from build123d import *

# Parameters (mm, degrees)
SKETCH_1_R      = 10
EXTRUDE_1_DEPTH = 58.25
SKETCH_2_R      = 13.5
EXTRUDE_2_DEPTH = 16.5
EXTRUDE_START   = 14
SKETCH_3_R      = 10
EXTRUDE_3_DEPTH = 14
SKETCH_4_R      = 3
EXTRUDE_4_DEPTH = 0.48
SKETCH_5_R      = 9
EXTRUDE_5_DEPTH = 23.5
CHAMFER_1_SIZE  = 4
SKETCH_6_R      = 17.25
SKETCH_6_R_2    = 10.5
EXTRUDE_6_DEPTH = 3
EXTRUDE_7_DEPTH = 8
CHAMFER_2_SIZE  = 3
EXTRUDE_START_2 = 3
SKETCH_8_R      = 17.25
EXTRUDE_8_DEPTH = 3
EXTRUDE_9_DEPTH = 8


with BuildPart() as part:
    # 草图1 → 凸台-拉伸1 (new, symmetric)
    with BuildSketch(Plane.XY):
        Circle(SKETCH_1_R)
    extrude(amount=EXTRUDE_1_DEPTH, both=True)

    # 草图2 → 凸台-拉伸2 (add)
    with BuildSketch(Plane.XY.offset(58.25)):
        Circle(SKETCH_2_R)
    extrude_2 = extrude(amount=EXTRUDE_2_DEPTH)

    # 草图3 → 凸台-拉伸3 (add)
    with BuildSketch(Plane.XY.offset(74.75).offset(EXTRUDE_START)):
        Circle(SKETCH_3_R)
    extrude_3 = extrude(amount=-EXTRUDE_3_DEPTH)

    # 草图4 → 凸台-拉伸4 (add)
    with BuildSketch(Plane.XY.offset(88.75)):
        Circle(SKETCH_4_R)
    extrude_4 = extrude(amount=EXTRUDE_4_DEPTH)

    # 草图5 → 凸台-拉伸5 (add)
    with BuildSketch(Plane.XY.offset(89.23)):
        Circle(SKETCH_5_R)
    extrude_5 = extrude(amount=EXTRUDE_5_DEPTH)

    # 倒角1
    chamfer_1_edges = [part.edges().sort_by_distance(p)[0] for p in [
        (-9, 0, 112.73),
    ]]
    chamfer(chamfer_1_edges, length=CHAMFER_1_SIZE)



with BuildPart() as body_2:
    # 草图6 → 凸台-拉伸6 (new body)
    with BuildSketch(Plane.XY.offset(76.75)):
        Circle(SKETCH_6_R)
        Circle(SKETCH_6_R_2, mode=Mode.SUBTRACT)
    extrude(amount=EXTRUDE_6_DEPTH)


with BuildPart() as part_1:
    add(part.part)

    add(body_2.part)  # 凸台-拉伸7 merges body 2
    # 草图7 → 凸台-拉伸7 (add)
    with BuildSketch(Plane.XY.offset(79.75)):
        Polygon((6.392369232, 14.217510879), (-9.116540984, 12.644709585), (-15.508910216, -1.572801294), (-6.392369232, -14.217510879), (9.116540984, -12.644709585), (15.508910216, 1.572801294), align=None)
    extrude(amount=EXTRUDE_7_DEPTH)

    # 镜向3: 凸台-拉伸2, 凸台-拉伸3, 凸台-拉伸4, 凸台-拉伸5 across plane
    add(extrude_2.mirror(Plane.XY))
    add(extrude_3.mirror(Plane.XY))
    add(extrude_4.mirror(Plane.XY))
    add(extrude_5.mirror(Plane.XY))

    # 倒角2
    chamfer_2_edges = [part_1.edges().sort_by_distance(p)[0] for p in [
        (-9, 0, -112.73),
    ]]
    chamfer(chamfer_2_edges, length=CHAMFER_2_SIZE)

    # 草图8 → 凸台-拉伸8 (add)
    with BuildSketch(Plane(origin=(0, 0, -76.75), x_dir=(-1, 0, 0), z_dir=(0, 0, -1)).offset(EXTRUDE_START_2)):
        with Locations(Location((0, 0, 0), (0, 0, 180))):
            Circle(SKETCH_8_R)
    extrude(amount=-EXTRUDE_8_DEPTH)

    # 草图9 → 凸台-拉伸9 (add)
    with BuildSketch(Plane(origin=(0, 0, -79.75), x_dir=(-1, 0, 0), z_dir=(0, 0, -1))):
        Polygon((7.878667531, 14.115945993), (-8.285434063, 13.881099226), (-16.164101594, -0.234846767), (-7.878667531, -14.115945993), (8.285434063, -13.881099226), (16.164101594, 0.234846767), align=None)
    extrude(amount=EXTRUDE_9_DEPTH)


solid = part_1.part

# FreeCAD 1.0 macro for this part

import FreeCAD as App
import Part
import Sketcher

V = App.Vector


def edges_at(feature, points):
    """Names of the edges that pass closest to the given points."""
    edges = feature.Shape.Edges
    near = lambda p: min(range(len(edges)), key=lambda i: edges[i].distToShape(Part.Vertex(*p))[0])
    return sorted({f"Edge{near(p) + 1}" for p in points})


def add_polygon(sketch, points):
    """Adds a closed chain of lines whose ends are joined by coincident constraints."""
    first, n = sketch.GeometryCount, len(points)
    for a, b in zip(points, points[1:] + points[:1]):
        sketch.addGeometry(Part.LineSegment(App.Vector(*a, 0), App.Vector(*b, 0)), False)
    for i in range(n):
        sketch.addConstraint(Sketcher.Constraint("Coincident", first + i, 2, first + (i + 1) % n, 1))

doc = App.newDocument("Part")
params = doc.addObject("Spreadsheet::Sheet", "Params")
for row, (alias, value) in enumerate([
    ("sketch1_diameter", "20 mm"),
    ("pad1_length", "116.5 mm"),
    ("sketch2_diameter", "27 mm"),
    ("pad2_length", "16.5 mm"),
    ("sketch3_diameter", "20 mm"),
    ("pad3_length", "14 mm"),
    ("sketch4_diameter", "6 mm"),
    ("pad4_length", "0.48 mm"),
    ("sketch5_diameter", "18 mm"),
    ("pad5_length", "23.5 mm"),
    ("chamfer_size", "4 mm"),
    ("sketch6_diameter", "21 mm"),
    ("sketch6_diameter2", "34.5 mm"),
    ("pad6_length", "3 mm"),
    ("pad7_length", "8 mm"),
    ("chamfer2_size", "3 mm"),
    ("sketch8_diameter", "34.5 mm"),
    ("pad8_length", "3 mm"),
    ("pad9_length", "8 mm"),
], start=1):
    params.set(f"A{row}", alias)
    params.set(f"B{row}", "=" + value)
    params.setAlias(f"B{row}", alias)

body = doc.addObject("PartDesign::Body", "Body")

# Sketch on XY plane
sketch1 = body.newObject("Sketcher::SketchObject", "Sketch")
sketch1.AttachmentSupport = (doc.getObject("XY_Plane"), [""])
sketch1.MapMode = "FlatFace"
sketch1.addGeometry(Part.Circle(V(0, 0, 0), V(0, 0, 1), 10), False)
sketch1.addConstraint([
    Sketcher.Constraint("Coincident", 0, 3, -1, 1),
    Sketcher.Constraint("Diameter", 0, 20.0),
])
sketch1.setExpression("Constraints[1]", "Params.sketch1_diameter")
pad1 = body.newObject("PartDesign::Pad", "Pad")
pad1.Profile = sketch1
pad1.setExpression("Length", "Params.pad1_length")
pad1.Midplane = True

# Sketch on XY plane
sketch2 = body.newObject("Sketcher::SketchObject", "Sketch001")
sketch2.AttachmentSupport = (doc.getObject("XY_Plane"), [""])
sketch2.MapMode = "FlatFace"
sketch2.AttachmentOffset = App.Placement(V(0, 0, 58.25), App.Rotation())
sketch2.addGeometry(Part.Circle(V(0, 0, 0), V(0, 0, 1), 14), False)
sketch2.addConstraint([
    Sketcher.Constraint("Coincident", 0, 3, -1, 1),
    Sketcher.Constraint("Diameter", 0, 27.0),
])
sketch2.setExpression("Constraints[1]", "Params.sketch2_diameter")
pad2 = body.newObject("PartDesign::Pad", "Pad001")
pad2.Profile = sketch2
pad2.setExpression("Length", "Params.pad2_length")

# Sketch on XY plane
sketch3 = body.newObject("Sketcher::SketchObject", "Sketch002")
sketch3.AttachmentSupport = (doc.getObject("XY_Plane"), [""])
sketch3.MapMode = "FlatFace"
sketch3.AttachmentOffset = App.Placement(V(0, 0, 88.75), App.Rotation())
sketch3.addGeometry(Part.Circle(V(0, 0, 0), V(0, 0, 1), 10), False)
sketch3.addConstraint([
    Sketcher.Constraint("Coincident", 0, 3, -1, 1),
    Sketcher.Constraint("Diameter", 0, 20.0),
])
sketch3.setExpression("Constraints[1]", "Params.sketch3_diameter")
pad3 = body.newObject("PartDesign::Pad", "Pad002")
pad3.Profile = sketch3
pad3.setExpression("Length", "Params.pad3_length")
pad3.Reversed = True

# Sketch on XY plane
sketch4 = body.newObject("Sketcher::SketchObject", "Sketch003")
sketch4.AttachmentSupport = (doc.getObject("XY_Plane"), [""])
sketch4.MapMode = "FlatFace"
sketch4.AttachmentOffset = App.Placement(V(0, 0, 88.75), App.Rotation())
sketch4.addGeometry(Part.Circle(V(0, 0, 0), V(0, 0, 1), 3), False)
sketch4.addConstraint([
    Sketcher.Constraint("Coincident", 0, 3, -1, 1),
    Sketcher.Constraint("Diameter", 0, 6.0),
])
sketch4.setExpression("Constraints[1]", "Params.sketch4_diameter")
pad4 = body.newObject("PartDesign::Pad", "Pad003")
pad4.Profile = sketch4
pad4.setExpression("Length", "Params.pad4_length")

# Sketch on XY plane
sketch5 = body.newObject("Sketcher::SketchObject", "Sketch004")
sketch5.AttachmentSupport = (doc.getObject("XY_Plane"), [""])
sketch5.MapMode = "FlatFace"
sketch5.AttachmentOffset = App.Placement(V(0, 0, 89.23), App.Rotation())
sketch5.addGeometry(Part.Circle(V(0, 0, 0), V(0, 0, 1), 9), False)
sketch5.addConstraint([
    Sketcher.Constraint("Coincident", 0, 3, -1, 1),
    Sketcher.Constraint("Diameter", 0, 18.0),
])
sketch5.setExpression("Constraints[1]", "Params.sketch5_diameter")
pad5 = body.newObject("PartDesign::Pad", "Pad004")
pad5.Profile = sketch5
pad5.setExpression("Length", "Params.pad5_length")
doc.recompute()

chamfer = body.newObject("PartDesign::Chamfer", "Chamfer")
chamfer.Base = (pad5, edges_at(pad5, [(-9, 0, 112.73)]))
chamfer.setExpression("Size", "Params.chamfer_size")
body2 = doc.addObject("PartDesign::Body", "Body001")

# Sketch on XY plane
sketch6 = body2.newObject("Sketcher::SketchObject", "Sketch005")
sketch6.AttachmentSupport = (doc.getObject("XY_Plane001"), [""])
sketch6.MapMode = "FlatFace"
sketch6.AttachmentOffset = App.Placement(V(0, 0, 76.75), App.Rotation())
sketch6.addGeometry([
    Part.Circle(V(0, 0, 0), V(0, 0, 1), 17),
    Part.Circle(V(0, 0, 0), V(0, 0, 1), 10),
], False)
sketch6.addConstraint([
    Sketcher.Constraint("Coincident", 0, 3, -1, 1),
    Sketcher.Constraint("Coincident", 1, 3, -1, 1),
    Sketcher.Constraint("Diameter", 1, 21.0),
    Sketcher.Constraint("Diameter", 0, 34.5),
])
sketch6.setExpression("Constraints[2]", "Params.sketch6_diameter")
sketch6.setExpression("Constraints[3]", "Params.sketch6_diameter2")
pad6 = body2.newObject("PartDesign::Pad", "Pad005")
pad6.Profile = sketch6
pad6.setExpression("Length", "Params.pad6_length")
body.AllowCompound = True
doc.recompute()

boolean = body.newObject("PartDesign::Boolean", "Boolean")
boolean.Type = "Fuse"
boolean.addObjects([body2])

# Sketch on XY plane
sketch7 = body.newObject("Sketcher::SketchObject", "Sketch006")
sketch7.AttachmentSupport = (doc.getObject("XY_Plane"), [""])
sketch7.MapMode = "FlatFace"
sketch7.AttachmentOffset = App.Placement(V(0, 0, 79.75), App.Rotation())
add_polygon(sketch7, [(6, 14), (-9, 13), (-16, -2), (-6, -14), (9, -13), (16, 2)])  # lines 0-5
sketch7.addConstraint([
    Sketcher.Constraint("Symmetric", 0, 2, 3, 2, -1, 1),
    Sketcher.Constraint("Symmetric", 1, 2, 4, 2, -1, 1),
    Sketcher.Constraint("Symmetric", 2, 2, 5, 2, -1, 1),
    Sketcher.Constraint("Equal", 0, 1),
    Sketcher.Constraint("Equal", 1, 2),
    Sketcher.Constraint("DistanceY", 1, 2, -1, 1, 1.572801),
    Sketcher.Constraint("DistanceY", 2, 2, 3, 2, 1.572801),
    Sketcher.Constraint("DistanceX", 0, 2, -1, 1, 9.116541),
    Sketcher.Constraint("DistanceY", -1, 1, 0, 2, 12.64471),
])
pad7 = body.newObject("PartDesign::Pad", "Pad006")
pad7.Profile = sketch7
pad7.setExpression("Length", "Params.pad7_length")
doc.recompute()

mirrored = body.newObject("PartDesign::Mirrored", "Mirrored")
mirrored.Originals = [pad2, pad3, pad4, pad5]
mirrored.MirrorPlane = (doc.getObject("XY_Plane"), [""])
body.Tip = mirrored
doc.recompute()

chamfer2 = body.newObject("PartDesign::Chamfer", "Chamfer001")
chamfer2.Base = (mirrored, edges_at(mirrored, [(-9, 0, -112.73)]))
chamfer2.setExpression("Size", "Params.chamfer2_size")

# Sketch on XY plane
sketch8 = body.newObject("Sketcher::SketchObject", "Sketch007")
sketch8.AttachmentSupport = (doc.getObject("XY_Plane"), [""])
sketch8.MapMode = "FlatFace"
sketch8.AttachmentOffset = App.Placement(V(0, 0, -79.75), App.Rotation())
sketch8.addGeometry(Part.Circle(V(0, 0, 0), V(0, 0, 1), 17), False)
sketch8.addConstraint([
    Sketcher.Constraint("Coincident", 0, 3, -1, 1),
    Sketcher.Constraint("Diameter", 0, 34.5),
])
sketch8.setExpression("Constraints[1]", "Params.sketch8_diameter")
pad8 = body.newObject("PartDesign::Pad", "Pad007")
pad8.Profile = sketch8
pad8.setExpression("Length", "Params.pad8_length")

# Sketch on XY plane
sketch9 = body.newObject("Sketcher::SketchObject", "Sketch008")
sketch9.AttachmentSupport = (doc.getObject("XY_Plane"), [""])
sketch9.MapMode = "FlatFace"
sketch9.AttachmentOffset = App.Placement(V(0, 0, -79.75), App.Rotation())
add_polygon(sketch9, [(-8, 14), (8, 14), (16, 0), (8, -14), (-8, -14), (-16, 0)])  # lines 0-5
sketch9.addConstraint([
    Sketcher.Constraint("Symmetric", 0, 2, 3, 2, -1, 1),
    Sketcher.Constraint("Symmetric", 1, 2, 4, 2, -1, 1),
    Sketcher.Constraint("Symmetric", 2, 2, 5, 2, -1, 1),
    Sketcher.Constraint("Equal", 0, 1),
    Sketcher.Constraint("Equal", 1, 2),
    Sketcher.Constraint("DistanceY", -1, 1, 0, 2, 13.881099),
    Sketcher.Constraint("DistanceX", -1, 1, 1, 2, 16.164102),
    Sketcher.Constraint("DistanceY", 2, 2, 1, 2, 13.881099),
    Sketcher.Constraint("DistanceX", 3, 2, 2, 2, 16.164102),
])
pad9 = body.newObject("PartDesign::Pad", "Pad008")
pad9.Profile = sketch9
pad9.setExpression("Length", "Params.pad9_length")
pad9.Reversed = True

doc.recompute()
